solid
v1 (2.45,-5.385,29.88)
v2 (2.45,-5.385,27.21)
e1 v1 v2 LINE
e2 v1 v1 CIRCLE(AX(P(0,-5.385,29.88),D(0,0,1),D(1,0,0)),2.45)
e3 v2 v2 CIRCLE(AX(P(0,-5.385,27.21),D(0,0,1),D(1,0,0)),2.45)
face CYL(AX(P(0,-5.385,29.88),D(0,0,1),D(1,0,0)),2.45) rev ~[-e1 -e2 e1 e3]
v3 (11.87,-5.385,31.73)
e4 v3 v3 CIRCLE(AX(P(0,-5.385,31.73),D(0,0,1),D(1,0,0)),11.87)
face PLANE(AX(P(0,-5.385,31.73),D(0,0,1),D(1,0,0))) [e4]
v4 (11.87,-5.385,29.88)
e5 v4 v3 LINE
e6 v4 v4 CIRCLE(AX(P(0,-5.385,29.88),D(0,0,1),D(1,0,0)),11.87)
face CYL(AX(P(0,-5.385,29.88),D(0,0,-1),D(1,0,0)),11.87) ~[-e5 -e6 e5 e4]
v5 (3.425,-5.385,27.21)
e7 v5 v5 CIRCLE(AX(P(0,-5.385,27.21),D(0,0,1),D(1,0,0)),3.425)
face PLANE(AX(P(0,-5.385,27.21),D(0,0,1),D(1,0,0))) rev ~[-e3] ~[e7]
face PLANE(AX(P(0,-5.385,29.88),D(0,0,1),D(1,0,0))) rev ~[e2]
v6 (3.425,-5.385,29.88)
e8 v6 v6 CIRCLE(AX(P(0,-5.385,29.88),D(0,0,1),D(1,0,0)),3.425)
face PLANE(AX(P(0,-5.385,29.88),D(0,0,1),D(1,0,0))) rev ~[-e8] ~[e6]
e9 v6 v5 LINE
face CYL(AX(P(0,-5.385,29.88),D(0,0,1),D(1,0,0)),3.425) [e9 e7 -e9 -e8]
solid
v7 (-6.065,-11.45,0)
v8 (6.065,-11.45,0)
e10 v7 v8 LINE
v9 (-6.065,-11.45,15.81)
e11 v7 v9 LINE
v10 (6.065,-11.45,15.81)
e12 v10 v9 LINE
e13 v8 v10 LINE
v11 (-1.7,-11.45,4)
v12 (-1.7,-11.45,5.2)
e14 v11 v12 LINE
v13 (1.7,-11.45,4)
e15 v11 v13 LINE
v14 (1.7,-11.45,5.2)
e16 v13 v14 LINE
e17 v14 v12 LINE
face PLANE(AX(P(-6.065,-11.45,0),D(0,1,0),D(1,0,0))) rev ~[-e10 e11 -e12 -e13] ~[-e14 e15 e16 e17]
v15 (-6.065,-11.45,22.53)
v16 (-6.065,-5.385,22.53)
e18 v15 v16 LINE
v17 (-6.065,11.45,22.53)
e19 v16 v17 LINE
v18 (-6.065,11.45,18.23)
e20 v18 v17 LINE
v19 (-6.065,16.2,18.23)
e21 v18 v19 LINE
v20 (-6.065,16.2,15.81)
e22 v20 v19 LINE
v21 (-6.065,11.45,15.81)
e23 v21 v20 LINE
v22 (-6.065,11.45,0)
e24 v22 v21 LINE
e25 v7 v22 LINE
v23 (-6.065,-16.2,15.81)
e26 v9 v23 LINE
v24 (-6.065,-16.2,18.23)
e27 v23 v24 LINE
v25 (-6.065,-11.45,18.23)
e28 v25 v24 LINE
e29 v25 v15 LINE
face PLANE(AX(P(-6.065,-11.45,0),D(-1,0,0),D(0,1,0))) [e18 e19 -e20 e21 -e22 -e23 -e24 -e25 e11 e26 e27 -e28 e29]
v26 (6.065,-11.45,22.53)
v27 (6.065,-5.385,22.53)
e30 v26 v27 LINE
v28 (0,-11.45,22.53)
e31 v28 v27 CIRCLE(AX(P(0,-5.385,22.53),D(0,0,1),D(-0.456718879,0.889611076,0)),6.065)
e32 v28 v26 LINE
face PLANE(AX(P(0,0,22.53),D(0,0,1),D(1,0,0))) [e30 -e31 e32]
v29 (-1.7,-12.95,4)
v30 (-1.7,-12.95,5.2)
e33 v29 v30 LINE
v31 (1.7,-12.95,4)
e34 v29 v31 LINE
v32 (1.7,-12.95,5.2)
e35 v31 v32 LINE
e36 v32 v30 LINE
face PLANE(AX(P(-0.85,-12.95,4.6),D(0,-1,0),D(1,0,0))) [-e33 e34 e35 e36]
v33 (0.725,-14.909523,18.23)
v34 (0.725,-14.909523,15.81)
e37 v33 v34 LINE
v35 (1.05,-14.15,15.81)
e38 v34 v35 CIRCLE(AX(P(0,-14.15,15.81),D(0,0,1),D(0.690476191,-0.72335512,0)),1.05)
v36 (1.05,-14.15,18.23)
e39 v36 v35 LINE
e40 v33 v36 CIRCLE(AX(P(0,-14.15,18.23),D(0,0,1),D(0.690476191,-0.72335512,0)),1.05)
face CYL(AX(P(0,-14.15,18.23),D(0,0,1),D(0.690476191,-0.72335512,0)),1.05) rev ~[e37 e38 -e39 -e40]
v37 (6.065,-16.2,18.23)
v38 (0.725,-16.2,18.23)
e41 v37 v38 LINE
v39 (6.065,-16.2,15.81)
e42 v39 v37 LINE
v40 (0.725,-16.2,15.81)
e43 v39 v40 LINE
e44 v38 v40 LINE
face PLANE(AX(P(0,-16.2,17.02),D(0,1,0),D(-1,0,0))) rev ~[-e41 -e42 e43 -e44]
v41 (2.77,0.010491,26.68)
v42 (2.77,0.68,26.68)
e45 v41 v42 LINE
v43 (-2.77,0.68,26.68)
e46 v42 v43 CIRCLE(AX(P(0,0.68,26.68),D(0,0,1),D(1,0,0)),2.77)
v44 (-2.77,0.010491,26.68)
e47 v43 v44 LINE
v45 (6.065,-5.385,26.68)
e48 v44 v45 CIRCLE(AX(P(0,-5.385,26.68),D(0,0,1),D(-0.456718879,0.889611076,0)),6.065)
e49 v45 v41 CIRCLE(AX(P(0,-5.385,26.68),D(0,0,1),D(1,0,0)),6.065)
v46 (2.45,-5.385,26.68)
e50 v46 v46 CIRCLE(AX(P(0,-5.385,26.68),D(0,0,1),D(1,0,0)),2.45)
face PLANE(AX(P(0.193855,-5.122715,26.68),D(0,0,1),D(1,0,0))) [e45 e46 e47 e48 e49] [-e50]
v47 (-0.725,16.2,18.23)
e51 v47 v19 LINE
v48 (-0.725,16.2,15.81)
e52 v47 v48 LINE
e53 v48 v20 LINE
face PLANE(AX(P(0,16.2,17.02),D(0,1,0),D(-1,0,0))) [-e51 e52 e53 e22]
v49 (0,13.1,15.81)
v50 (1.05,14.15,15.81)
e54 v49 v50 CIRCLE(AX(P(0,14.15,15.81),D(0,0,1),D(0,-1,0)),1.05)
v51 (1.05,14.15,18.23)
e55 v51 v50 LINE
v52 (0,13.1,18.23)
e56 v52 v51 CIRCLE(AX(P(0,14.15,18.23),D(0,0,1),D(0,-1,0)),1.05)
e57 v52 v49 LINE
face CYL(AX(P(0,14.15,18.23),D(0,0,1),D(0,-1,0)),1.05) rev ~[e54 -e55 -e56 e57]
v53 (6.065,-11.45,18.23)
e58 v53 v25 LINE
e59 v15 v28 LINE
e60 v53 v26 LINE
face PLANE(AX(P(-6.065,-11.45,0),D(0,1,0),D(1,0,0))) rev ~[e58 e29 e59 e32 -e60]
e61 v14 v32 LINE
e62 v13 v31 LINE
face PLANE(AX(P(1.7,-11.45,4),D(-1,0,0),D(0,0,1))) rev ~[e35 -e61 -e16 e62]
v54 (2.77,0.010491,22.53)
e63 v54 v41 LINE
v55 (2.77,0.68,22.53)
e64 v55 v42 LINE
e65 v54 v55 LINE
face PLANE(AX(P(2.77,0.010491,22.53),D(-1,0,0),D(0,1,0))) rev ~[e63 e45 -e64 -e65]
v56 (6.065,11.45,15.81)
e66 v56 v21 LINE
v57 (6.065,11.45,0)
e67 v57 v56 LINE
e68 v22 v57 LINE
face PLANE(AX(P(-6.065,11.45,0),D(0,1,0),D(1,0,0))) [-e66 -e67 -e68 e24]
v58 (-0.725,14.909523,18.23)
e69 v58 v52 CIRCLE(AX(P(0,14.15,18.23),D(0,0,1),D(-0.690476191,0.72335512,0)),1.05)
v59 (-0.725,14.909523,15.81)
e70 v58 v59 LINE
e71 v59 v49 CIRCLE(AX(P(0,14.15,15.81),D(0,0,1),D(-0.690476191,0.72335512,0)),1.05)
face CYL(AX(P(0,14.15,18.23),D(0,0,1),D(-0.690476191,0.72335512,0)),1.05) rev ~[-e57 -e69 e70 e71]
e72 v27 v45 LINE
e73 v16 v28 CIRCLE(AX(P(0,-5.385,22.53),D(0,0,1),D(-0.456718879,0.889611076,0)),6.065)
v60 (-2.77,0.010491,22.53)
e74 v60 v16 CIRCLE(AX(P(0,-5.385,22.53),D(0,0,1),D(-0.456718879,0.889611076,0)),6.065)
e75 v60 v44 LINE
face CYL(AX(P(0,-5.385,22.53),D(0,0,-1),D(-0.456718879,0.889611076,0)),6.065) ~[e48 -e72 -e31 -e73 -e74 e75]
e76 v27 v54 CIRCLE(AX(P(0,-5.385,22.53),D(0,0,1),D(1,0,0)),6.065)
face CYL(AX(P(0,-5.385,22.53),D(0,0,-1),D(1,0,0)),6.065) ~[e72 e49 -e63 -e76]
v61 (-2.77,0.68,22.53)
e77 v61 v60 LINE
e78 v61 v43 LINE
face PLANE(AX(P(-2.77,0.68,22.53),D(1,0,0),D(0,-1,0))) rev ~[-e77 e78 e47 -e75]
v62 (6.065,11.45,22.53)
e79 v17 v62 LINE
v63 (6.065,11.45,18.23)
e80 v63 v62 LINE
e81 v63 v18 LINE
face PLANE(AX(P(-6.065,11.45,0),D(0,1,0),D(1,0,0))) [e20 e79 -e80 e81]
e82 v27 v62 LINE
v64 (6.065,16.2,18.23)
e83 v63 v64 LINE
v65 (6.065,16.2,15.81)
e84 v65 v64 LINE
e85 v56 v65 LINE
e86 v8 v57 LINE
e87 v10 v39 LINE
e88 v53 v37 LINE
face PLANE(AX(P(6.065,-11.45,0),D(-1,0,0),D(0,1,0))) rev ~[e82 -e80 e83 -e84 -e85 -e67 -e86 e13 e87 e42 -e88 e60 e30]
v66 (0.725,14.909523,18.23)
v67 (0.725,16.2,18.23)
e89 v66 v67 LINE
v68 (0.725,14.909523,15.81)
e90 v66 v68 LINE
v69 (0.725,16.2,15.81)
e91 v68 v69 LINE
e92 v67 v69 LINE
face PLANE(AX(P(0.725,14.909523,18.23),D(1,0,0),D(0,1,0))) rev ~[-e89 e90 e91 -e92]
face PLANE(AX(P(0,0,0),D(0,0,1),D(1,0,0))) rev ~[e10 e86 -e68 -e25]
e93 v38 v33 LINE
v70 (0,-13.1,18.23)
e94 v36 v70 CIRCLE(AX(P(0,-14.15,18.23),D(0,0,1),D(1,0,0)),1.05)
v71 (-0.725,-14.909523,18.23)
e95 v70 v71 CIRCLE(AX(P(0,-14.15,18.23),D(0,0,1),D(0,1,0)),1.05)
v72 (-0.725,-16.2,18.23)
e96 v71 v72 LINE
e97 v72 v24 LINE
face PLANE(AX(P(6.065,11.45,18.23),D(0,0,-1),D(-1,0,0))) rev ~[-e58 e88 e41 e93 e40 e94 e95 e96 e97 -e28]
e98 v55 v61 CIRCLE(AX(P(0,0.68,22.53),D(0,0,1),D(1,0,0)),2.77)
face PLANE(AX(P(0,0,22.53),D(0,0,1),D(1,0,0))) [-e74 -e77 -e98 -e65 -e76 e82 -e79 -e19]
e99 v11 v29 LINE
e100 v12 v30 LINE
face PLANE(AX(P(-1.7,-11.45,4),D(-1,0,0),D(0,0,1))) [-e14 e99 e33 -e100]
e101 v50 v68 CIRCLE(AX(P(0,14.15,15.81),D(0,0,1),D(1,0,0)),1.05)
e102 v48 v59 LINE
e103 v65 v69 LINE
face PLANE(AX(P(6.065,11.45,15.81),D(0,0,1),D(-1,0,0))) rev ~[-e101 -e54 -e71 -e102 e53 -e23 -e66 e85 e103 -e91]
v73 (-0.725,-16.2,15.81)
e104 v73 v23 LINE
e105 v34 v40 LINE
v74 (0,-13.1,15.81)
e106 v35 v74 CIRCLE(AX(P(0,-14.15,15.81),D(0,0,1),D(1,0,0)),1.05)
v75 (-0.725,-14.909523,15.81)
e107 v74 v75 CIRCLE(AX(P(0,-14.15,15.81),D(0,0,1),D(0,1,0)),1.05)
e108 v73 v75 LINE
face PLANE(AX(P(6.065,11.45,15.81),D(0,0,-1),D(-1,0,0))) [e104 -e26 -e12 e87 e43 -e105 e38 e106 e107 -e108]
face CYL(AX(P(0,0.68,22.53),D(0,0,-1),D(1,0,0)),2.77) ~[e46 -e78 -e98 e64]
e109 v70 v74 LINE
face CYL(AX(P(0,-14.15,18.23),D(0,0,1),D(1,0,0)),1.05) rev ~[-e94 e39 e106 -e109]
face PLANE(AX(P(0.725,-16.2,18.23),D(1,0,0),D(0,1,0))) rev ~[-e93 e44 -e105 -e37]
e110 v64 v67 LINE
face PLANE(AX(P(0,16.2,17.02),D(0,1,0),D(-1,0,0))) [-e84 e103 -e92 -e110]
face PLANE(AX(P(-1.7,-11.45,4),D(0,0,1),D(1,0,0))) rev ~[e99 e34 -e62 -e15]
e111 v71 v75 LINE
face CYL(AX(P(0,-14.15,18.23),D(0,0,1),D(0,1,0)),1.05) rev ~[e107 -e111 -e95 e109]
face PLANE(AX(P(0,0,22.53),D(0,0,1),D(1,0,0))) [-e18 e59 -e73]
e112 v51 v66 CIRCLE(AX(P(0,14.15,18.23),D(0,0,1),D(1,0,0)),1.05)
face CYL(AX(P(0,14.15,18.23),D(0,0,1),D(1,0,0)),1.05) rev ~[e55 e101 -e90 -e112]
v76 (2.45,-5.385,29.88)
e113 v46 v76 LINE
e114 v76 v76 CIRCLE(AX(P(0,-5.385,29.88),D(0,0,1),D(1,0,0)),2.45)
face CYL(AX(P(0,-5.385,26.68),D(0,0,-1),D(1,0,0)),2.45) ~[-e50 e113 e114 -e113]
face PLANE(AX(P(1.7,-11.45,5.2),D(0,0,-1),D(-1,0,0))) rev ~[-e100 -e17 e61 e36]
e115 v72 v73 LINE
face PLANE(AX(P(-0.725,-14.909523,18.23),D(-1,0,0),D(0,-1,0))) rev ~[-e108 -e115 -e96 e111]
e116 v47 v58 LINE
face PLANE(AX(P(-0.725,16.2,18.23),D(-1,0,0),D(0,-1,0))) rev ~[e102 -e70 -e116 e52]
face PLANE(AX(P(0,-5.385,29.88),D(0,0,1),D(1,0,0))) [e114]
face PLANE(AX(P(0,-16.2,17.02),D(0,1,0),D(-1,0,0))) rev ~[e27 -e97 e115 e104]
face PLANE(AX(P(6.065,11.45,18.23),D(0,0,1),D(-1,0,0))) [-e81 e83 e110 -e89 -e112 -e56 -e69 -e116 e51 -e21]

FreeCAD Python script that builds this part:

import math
import FreeCAD as App
import Part
import Sketcher
from FreeCAD import Vector
Q = App.Units.Quantity


def add_polygon(sketch, points):
    """Adds a closed chain of lines whose ends are joined by coincident constraints."""
    first, n = sketch.GeometryCount, len(points)
    for a, b in zip(points, points[1:] + points[:1]):
        sketch.addGeometry(Part.LineSegment(App.Vector(*a, 0), App.Vector(*b, 0)), False)
    for i in range(n):
        sketch.addConstraint(Sketcher.Constraint("Coincident", first + i, 2, first + (i + 1) % n, 1))

doc = App.newDocument("Part")
body = doc.addObject("PartDesign::Body", "Body")

# Sketch on XY plane
sketch1 = doc.addObject("Sketcher::SketchObject", "Sketch")
body.addObject(sketch1)
sketch1.AttachmentSupport = (doc.XY_Plane, [""])
sketch1.MapMode = "FlatFace"
add_polygon(sketch1, [(-6, 11), (-6, -11), (6, -11), (6, 11)])  # lines 0-3
sketch1.addConstraint(Sketcher.Constraint("Vertical", 0))
sketch1.addConstraint(Sketcher.Constraint("Horizontal", 1))
sketch1.addConstraint(Sketcher.Constraint("Vertical", 2))
sketch1.addConstraint(Sketcher.Constraint("Horizontal", 3))
sketch1.addConstraint(Sketcher.Constraint("Symmetric", 0, 2, 2, 2, -1, 1))
sketch1.addConstraint(Sketcher.Constraint("DistanceY", 0, 2, 0, 1, Q("22.9 mm")))
sketch1.addConstraint(Sketcher.Constraint("DistanceX", 1, 1, 1, 2, Q("12.13 mm")))
pad1 = doc.addObject("PartDesign::Pad", "Pad")
body.addObject(pad1)
pad1.Profile = sketch1
pad1.Length = 22.53

# Sketch on XZ plane
sketch2 = doc.addObject("Sketcher::SketchObject", "Sketch001")
body.addObject(sketch2)
sketch2.AttachmentSupport = (doc.XZ_Plane, [""])
sketch2.MapMode = "FlatFace"
sketch2.AttachmentOffset = App.Placement(Vector(0, 0, -11.45), App.Rotation())
add_polygon(sketch2, [(6.1, 18.2), (6.1, 15.8), (-6.1, 15.8), (-6.1, 18.2)])  # lines 0-3
sketch2.addConstraint(Sketcher.Constraint("Vertical", 0))
sketch2.addConstraint(Sketcher.Constraint("Horizontal", 1))
sketch2.addConstraint(Sketcher.Constraint("Vertical", 2))
sketch2.addConstraint(Sketcher.Constraint("Horizontal", 3))
sketch2.addConstraint(Sketcher.Constraint("DistanceX", 1, 2, 1, 1, Q("12.13 mm")))
sketch2.addConstraint(Sketcher.Constraint("DistanceY", 0, 2, 0, 1, Q("2.42 mm")))
sketch2.addConstraint(Sketcher.Constraint("DistanceY", -1, 1, 0, 2, Q("15.81 mm")))
sketch2.addConstraint(Sketcher.Constraint("DistanceX", -1, 1, 0, 2, Q("6.065 mm")))
pad2 = doc.addObject("PartDesign::Pad", "Pad001")
body.addObject(pad2)
pad2.Profile = sketch2
pad2.Type = "TwoLengths"
pad2.Length = 4.75
pad2.Length2 = 27.65
pad2.Reversed = True

# Sketch on XY plane
sketch3 = doc.addObject("Sketcher::SketchObject", "Sketch002")
body.addObject(sketch3)
sketch3.AttachmentSupport = (doc.XY_Plane, [""])
sketch3.MapMode = "FlatFace"
sketch3.AttachmentOffset = App.Placement(Vector(0, 0, 18.23), App.Rotation())
sketch3.addGeometry(Part.ArcOfCircle(Part.Circle(Vector(0, 14.2, 0), Vector(0, 0, 1), 1.1), math.radians(-90), math.radians(0)), False)
sketch3.addGeometry(Part.ArcOfCircle(Part.Circle(Vector(0, 14.2, 0), Vector(0, 0, 1), 1.1), math.radians(0), math.radians(46)), False)
sketch3.addGeometry(Part.LineSegment(Vector(0.7, 14.9, 0), Vector(0.7, 16.2, 0)), False)
sketch3.addGeometry(Part.LineSegment(Vector(0.7, 16.2, 0), Vector(-0.7, 16.2, 0)), False)
sketch3.addGeometry(Part.LineSegment(Vector(-0.7, 16.2, 0), Vector(-0.7, 14.9, 0)), False)
sketch3.addGeometry(Part.ArcOfCircle(Part.Circle(Vector(0, 14.2, 0), Vector(0, 0, 1), 1.1), math.radians(134), math.radians(270)), False)
sketch3.addConstraint(Sketcher.Constraint("Tangent", 0, 2, 1, 1))
sketch3.addConstraint(Sketcher.Constraint("Coincident", 1, 2, 2, 1))
sketch3.addConstraint(Sketcher.Constraint("Coincident", 2, 2, 3, 1))
sketch3.addConstraint(Sketcher.Constraint("Coincident", 3, 2, 4, 1))
sketch3.addConstraint(Sketcher.Constraint("Coincident", 4, 2, 5, 1))
sketch3.addConstraint(Sketcher.Constraint("Tangent", 5, 2, 0, 1))
sketch3.addConstraint(Sketcher.Constraint("Vertical", 2))
sketch3.addConstraint(Sketcher.Constraint("Horizontal", 3))
sketch3.addConstraint(Sketcher.Constraint("Vertical", 4))
sketch3.addConstraint(Sketcher.Constraint("Equal", 0, 1))
sketch3.addConstraint(Sketcher.Constraint("Equal", 1, 5))
sketch3.addConstraint(Sketcher.Constraint("Symmetric", 1, 2, 4, 2, -2))
sketch3.addConstraint(Sketcher.Constraint("PointOnObject", 5, 2, -2))
sketch3.addConstraint(Sketcher.Constraint("Horizontal", 5, 3, 0, 2))
sketch3.addConstraint(Sketcher.Constraint("Radius", 0, Q("1.05 mm")))
sketch3.addConstraint(Sketcher.Constraint("DistanceX", 3, 2, 3, 1, Q("1.45 mm")))
sketch3.addConstraint(Sketcher.Constraint("DistanceY", -1, 1, 2, 2, Q("16.2 mm")))
sketch3.addConstraint(Sketcher.Constraint("DistanceY", -1, 1, 5, 2, Q("13.1 mm")))
pocket1 = doc.addObject("PartDesign::Pocket", "Pocket")
body.addObject(pocket1)
pocket1.Profile = sketch3
pocket1.Length = 25

# Sketch on XY plane
sketch4 = doc.addObject("Sketcher::SketchObject", "Sketch003")
body.addObject(sketch4)
sketch4.AttachmentSupport = (doc.XY_Plane, [""])
sketch4.MapMode = "FlatFace"
sketch4.AttachmentOffset = App.Placement(Vector(0, 0, 18.23), App.Rotation())
sketch4.addGeometry(Part.ArcOfCircle(Part.Circle(Vector(0, -14.2, 0), Vector(0, 0, 1), 1.1), math.radians(0), math.radians(90)), False)
sketch4.addGeometry(Part.ArcOfCircle(Part.Circle(Vector(0, -14.2, 0), Vector(0, 0, 1), 1.1), math.radians(90), math.radians(226)), False)
sketch4.addGeometry(Part.LineSegment(Vector(-0.7, -14.9, 0), Vector(-0.7, -16.2, 0)), False)
sketch4.addGeometry(Part.LineSegment(Vector(-0.7, -16.2, 0), Vector(0.7, -16.2, 0)), False)
sketch4.addGeometry(Part.LineSegment(Vector(0.7, -16.2, 0), Vector(0.7, -14.9, 0)), False)
sketch4.addGeometry(Part.ArcOfCircle(Part.Circle(Vector(0, -14.2, 0), Vector(0, 0, 1), 1.1), math.radians(-46), math.radians(0)), False)
sketch4.addConstraint(Sketcher.Constraint("Tangent", 0, 2, 1, 1))
sketch4.addConstraint(Sketcher.Constraint("Coincident", 1, 2, 2, 1))
sketch4.addConstraint(Sketcher.Constraint("Coincident", 2, 2, 3, 1))
sketch4.addConstraint(Sketcher.Constraint("Coincident", 3, 2, 4, 1))
sketch4.addConstraint(Sketcher.Constraint("Coincident", 4, 2, 5, 1))
sketch4.addConstraint(Sketcher.Constraint("Tangent", 5, 2, 0, 1))
sketch4.addConstraint(Sketcher.Constraint("Vertical", 2))
sketch4.addConstraint(Sketcher.Constraint("Horizontal", 3))
sketch4.addConstraint(Sketcher.Constraint("Vertical", 4))
sketch4.addConstraint(Sketcher.Constraint("Equal", 0, 1))
sketch4.addConstraint(Sketcher.Constraint("Equal", 1, 5))
sketch4.addConstraint(Sketcher.Constraint("Symmetric", 1, 2, 4, 2, -2))
sketch4.addConstraint(Sketcher.Constraint("PointOnObject", 0, 2, -2))
sketch4.addConstraint(Sketcher.Constraint("Horizontal", 1, 3, 5, 2))
sketch4.addConstraint(Sketcher.Constraint("Radius", 0, Q("1.05 mm")))
sketch4.addConstraint(Sketcher.Constraint("DistanceX", 3, 1, 3, 2, Q("1.45 mm")))
sketch4.addConstraint(Sketcher.Constraint("DistanceY", 0, 2, -1, 1, Q("13.1 mm")))
sketch4.addConstraint(Sketcher.Constraint("DistanceY", 2, 2, -1, 1, Q("16.2 mm")))
pocket2 = doc.addObject("PartDesign::Pocket", "Pocket001")
body.addObject(pocket2)
pocket2.Profile = sketch4
pocket2.Length = 25

# Sketch on XY plane
sketch5 = doc.addObject("Sketcher::SketchObject", "Sketch004")
body.addObject(sketch5)
sketch5.AttachmentSupport = (doc.XY_Plane, [""])
sketch5.MapMode = "FlatFace"
sketch5.AttachmentOffset = App.Placement(Vector(0, 0, 22.53), App.Rotation())
sketch5.addGeometry(Part.ArcOfCircle(Part.Circle(Vector(0, -5.4, 0), Vector(0, 0, 1), 6.1), math.radians(117), math.radians(360)), False)
sketch5.addGeometry(Part.ArcOfCircle(Part.Circle(Vector(0, -5.4, 0), Vector(0, 0, 1), 6.1), math.radians(0), math.radians(63)), False)
sketch5.addGeometry(Part.LineSegment(Vector(2.8, 0, 0), Vector(2.8, 0.7, 0)), False)
sketch5.addGeometry(Part.ArcOfCircle(Part.Circle(Vector(0, 0.7, 0), Vector(0, 0, 1), 2.8), math.radians(0), math.radians(180)), False)
sketch5.addGeometry(Part.LineSegment(Vector(-2.8, 0.7, 0), Vector(-2.8, 0, 0)), False)
sketch5.addConstraint(Sketcher.Constraint("Tangent", 0, 2, 1, 1))
sketch5.addConstraint(Sketcher.Constraint("Coincident", 1, 2, 2, 1))
sketch5.addConstraint(Sketcher.Constraint("Tangent", 2, 2, 3, 1))
sketch5.addConstraint(Sketcher.Constraint("Tangent", 3, 2, 4, 1))
sketch5.addConstraint(Sketcher.Constraint("Coincident", 4, 2, 0, 1))
sketch5.addConstraint(Sketcher.Constraint("Vertical", 2))
sketch5.addConstraint(Sketcher.Constraint("Vertical", 4))
sketch5.addConstraint(Sketcher.Constraint("Equal", 0, 1))
sketch5.addConstraint(Sketcher.Constraint("Symmetric", 1, 2, 4, 2, -2))
sketch5.addConstraint(Sketcher.Constraint("Horizontal", 1, 3, 0, 2))
sketch5.addConstraint(Sketcher.Constraint("Radius", 3, Q("2.77 mm")))
sketch5.addConstraint(Sketcher.Constraint("Radius", 0, Q("6.065 mm")))
sketch5.addConstraint(Sketcher.Constraint("DistanceY", -1, 1, 3, 3, Q("0.68 mm")))
sketch5.addConstraint(Sketcher.Constraint("DistanceY", 0, 3, -1, 1, Q("5.385 mm")))
pad3 = doc.addObject("PartDesign::Pad", "Pad002")
body.addObject(pad3)
pad3.Profile = sketch5
pad3.Length = 4.15

# Sketch on XY plane
sketch6 = doc.addObject("Sketcher::SketchObject", "Sketch005")
body.addObject(sketch6)
sketch6.AttachmentSupport = (doc.XY_Plane, [""])
sketch6.MapMode = "FlatFace"
sketch6.AttachmentOffset = App.Placement(Vector(0, 0, 26.68), App.Rotation())
sketch6.addGeometry(Part.Circle(Vector(0, -5.4, 0), Vector(0, 0, 1), 2.5), False)
sketch6.addConstraint(Sketcher.Constraint("PointOnObject", 0, 3, -2))
sketch6.addConstraint(Sketcher.Constraint("Diameter", 0, Q("4.9 mm")))
sketch6.addConstraint(Sketcher.Constraint("DistanceY", 0, 3, -1, 1, Q("5.385 mm")))
pad4 = doc.addObject("PartDesign::Pad", "Pad003")
body.addObject(pad4)
pad4.Profile = sketch6
pad4.Length = 3.2

# Sketch on XZ plane
sketch7 = doc.addObject("Sketcher::SketchObject", "Sketch006")
body.addObject(sketch7)
sketch7.AttachmentSupport = (doc.XZ_Plane, [""])
sketch7.MapMode = "FlatFace"
sketch7.AttachmentOffset = App.Placement(Vector(0, 0, 11.45), App.Rotation())
add_polygon(sketch7, [(-1.7, 5.2), (-1.7, 4), (1.7, 4), (1.7, 5.2)])  # lines 0-3
sketch7.addConstraint(Sketcher.Constraint("Vertical", 0))
sketch7.addConstraint(Sketcher.Constraint("Horizontal", 1))
sketch7.addConstraint(Sketcher.Constraint("Vertical", 2))
sketch7.addConstraint(Sketcher.Constraint("Horizontal", 3))
sketch7.addConstraint(Sketcher.Constraint("DistanceX", 1, 1, 1, 2, Q("3.4 mm")))
sketch7.addConstraint(Sketcher.Constraint("DistanceY", 0, 2, 0, 1, Q("1.2 mm")))
sketch7.addConstraint(Sketcher.Constraint("DistanceY", -1, 1, 0, 2, Q("4 mm")))
sketch7.addConstraint(Sketcher.Constraint("DistanceX", 0, 2, -1, 1, Q("1.7 mm")))
pad5 = doc.addObject("PartDesign::Pad", "Pad004")
body.addObject(pad5)
pad5.Profile = sketch7
pad5.Length = 1.5
body2 = doc.addObject("PartDesign::Body", "Body001")

# Sketch on XY plane
sketch8 = doc.addObject("Sketcher::SketchObject", "Sketch007")
body2.addObject(sketch8)
sketch8.AttachmentSupport = (doc.getObject("XY_Plane001"), [""])
sketch8.MapMode = "FlatFace"
sketch8.AttachmentOffset = App.Placement(Vector(0, 0, 29.88), App.Rotation())
sketch8.addGeometry(Part.Circle(Vector(0, -5, 0), Vector(0, 0, 1), 12), False)
sketch8.addConstraint(Sketcher.Constraint("PointOnObject", 0, 3, -2))
sketch8.addConstraint(Sketcher.Constraint("Diameter", 0, Q("23.74 mm")))
sketch8.addConstraint(Sketcher.Constraint("DistanceY", 0, 3, -1, 1, Q("5.385 mm")))
pad6 = doc.addObject("PartDesign::Pad", "Pad005")
body2.addObject(pad6)
pad6.Profile = sketch8
pad6.Length = 1.85

# Sketch on XY plane
sketch9 = doc.addObject("Sketcher::SketchObject", "Sketch008")
body2.addObject(sketch9)
sketch9.AttachmentSupport = (doc.getObject("XY_Plane001"), [""])
sketch9.MapMode = "FlatFace"
sketch9.AttachmentOffset = App.Placement(Vector(0, 0, 29.88), App.Rotation())
sketch9.addGeometry(Part.Circle(Vector(0, -5.4, 0), Vector(0, 0, 1), 3.4), False)
sketch9.addGeometry(Part.Circle(Vector(0, -5.4, 0), Vector(0, 0, 1), 2.5), False)
sketch9.addConstraint(Sketcher.Constraint("Coincident", 1, 3, 0, 3))
sketch9.addConstraint(Sketcher.Constraint("PointOnObject", 0, 3, -2))
sketch9.addConstraint(Sketcher.Constraint("Diameter", 1, Q("4.9 mm")))
sketch9.addConstraint(Sketcher.Constraint("Diameter", 0, Q("6.85 mm")))
sketch9.addConstraint(Sketcher.Constraint("DistanceY", 0, 3, -1, 1, Q("5.385 mm")))
pad7 = doc.addObject("PartDesign::Pad", "Pad006")
body2.addObject(pad7)
pad7.Profile = sketch9
pad7.Length = 2.67
pad7.Reversed = True

doc.recompute()
